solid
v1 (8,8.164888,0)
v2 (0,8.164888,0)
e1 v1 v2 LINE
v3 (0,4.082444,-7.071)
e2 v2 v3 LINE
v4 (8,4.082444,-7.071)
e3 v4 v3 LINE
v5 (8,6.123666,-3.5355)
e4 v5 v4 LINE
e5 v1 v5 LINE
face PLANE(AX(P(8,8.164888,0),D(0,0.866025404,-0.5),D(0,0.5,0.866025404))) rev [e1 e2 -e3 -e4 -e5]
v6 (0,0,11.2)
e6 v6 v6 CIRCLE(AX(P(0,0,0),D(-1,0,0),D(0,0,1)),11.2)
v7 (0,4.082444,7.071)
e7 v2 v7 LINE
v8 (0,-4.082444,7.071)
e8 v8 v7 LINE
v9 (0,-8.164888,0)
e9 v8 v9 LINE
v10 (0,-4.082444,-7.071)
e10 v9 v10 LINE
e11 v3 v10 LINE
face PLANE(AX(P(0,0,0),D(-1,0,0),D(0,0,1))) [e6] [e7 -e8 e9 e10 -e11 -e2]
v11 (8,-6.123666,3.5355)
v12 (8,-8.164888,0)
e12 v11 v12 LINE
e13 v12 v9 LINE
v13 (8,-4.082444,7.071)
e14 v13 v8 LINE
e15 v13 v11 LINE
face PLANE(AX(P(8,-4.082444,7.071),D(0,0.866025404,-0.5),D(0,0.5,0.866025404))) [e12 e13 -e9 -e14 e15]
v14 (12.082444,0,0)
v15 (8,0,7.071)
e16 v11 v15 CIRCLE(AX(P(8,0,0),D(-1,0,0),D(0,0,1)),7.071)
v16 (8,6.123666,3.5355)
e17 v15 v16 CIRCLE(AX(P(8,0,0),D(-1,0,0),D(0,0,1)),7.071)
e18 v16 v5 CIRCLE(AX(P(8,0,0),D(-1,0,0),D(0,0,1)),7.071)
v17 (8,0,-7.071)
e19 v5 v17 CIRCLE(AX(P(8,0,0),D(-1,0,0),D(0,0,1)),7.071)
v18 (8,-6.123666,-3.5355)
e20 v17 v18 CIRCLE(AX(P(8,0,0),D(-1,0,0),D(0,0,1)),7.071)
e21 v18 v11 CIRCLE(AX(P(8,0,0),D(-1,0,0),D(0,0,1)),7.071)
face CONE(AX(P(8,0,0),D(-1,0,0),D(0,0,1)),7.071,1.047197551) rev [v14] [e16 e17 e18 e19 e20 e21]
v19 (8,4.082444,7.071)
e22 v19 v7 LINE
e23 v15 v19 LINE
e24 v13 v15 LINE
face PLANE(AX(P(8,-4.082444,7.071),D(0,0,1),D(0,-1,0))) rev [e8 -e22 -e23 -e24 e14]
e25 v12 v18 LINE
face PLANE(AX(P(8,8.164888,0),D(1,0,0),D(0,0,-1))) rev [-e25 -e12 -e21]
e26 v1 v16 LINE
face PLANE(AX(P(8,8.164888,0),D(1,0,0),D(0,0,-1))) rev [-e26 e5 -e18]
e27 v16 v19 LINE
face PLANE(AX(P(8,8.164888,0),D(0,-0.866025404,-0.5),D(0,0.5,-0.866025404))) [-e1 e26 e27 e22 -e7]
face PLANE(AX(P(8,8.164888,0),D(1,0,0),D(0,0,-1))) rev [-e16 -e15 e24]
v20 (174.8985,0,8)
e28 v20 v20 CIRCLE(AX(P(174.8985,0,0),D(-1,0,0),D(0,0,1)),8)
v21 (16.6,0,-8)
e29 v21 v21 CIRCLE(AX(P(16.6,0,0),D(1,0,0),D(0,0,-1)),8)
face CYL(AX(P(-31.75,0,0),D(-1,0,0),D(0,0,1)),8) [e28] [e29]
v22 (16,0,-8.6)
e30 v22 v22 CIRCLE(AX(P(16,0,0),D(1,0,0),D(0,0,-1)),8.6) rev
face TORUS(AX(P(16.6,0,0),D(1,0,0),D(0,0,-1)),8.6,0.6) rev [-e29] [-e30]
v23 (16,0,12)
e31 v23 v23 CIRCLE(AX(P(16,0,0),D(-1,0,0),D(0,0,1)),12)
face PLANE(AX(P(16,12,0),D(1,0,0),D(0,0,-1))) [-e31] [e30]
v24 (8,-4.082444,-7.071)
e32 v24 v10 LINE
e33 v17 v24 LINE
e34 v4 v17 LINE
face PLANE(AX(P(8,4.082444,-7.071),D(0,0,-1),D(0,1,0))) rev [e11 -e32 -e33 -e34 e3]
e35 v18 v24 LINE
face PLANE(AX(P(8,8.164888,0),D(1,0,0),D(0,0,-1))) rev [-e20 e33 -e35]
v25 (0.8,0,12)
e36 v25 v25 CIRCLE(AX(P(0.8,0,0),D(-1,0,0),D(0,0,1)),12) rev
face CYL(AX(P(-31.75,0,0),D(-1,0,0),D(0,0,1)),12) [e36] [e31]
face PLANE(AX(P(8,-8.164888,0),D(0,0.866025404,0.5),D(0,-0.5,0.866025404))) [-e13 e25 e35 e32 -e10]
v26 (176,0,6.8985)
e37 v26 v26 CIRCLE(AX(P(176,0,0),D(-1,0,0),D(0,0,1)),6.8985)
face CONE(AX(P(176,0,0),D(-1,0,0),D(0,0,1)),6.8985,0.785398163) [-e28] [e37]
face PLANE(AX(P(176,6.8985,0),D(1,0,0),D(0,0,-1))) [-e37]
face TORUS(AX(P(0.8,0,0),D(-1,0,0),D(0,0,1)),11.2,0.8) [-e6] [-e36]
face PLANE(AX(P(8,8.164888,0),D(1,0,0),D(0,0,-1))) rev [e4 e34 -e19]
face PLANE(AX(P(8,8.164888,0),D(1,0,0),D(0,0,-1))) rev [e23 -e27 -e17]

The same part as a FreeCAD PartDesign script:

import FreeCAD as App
import Part
import Sketcher
from FreeCAD import Vector
Q = App.Units.Quantity


def edges_at(feature, points):
    """Names of the edges that pass closest to the given points."""
    edges = feature.Shape.Edges
    near = lambda p: min(range(len(edges)), key=lambda i: edges[i].distToShape(Part.Vertex(*p))[0])
    return sorted({f"Edge{near(p) + 1}" for p in points})

doc = App.newDocument("Part")
params = doc.addObject("Spreadsheet::Sheet", "Params")
for row, (alias, value) in enumerate([
    ("sketch1_width", "176 mm"),
    ("sketch1_width2", "16 mm"),
    ("sketch1_height", "12 mm"),
    ("sketch1_height2", "4 mm"),
    ("revolution_angle", "360 deg"),
    ("fillet_radius", "0.6 mm"),
    ("fillet2_radius", "0.8 mm"),
    ("sketch2_width", "8 mm"),
    ("groove_angle", "360 deg"),
    ("pocket1_length", "8 mm"),
], start=1):
    params.set(f"A{row}", alias)
    params.set(f"B{row}", "=" + value)
    params.setAlias(f"B{row}", alias)

body = doc.addObject("PartDesign::Body", "Body")

# Sketch on XY plane
sketch1 = body.newObject("Sketcher::SketchObject", "Sketch")
sketch1.AttachmentSupport = (doc.getObject("XY_Plane"), [""])
sketch1.MapMode = "FlatFace"
sketch1.addGeometry([
    Part.LineSegment(Vector(0, 12, 0), Vector(0, 0, 0)),  # 0
    Part.LineSegment(Vector(0, 0, 0), Vector(176, 0, 0)),  # 1
    Part.LineSegment(Vector(176, 0, 0), Vector(176, 6.9, 0)),  # 2
    Part.LineSegment(Vector(176, 6.9, 0), Vector(174.9, 8, 0)),  # 3
    Part.LineSegment(Vector(174.9, 8, 0), Vector(16, 8, 0)),  # 4
    Part.LineSegment(Vector(16, 8, 0), Vector(16, 12, 0)),  # 5
    Part.LineSegment(Vector(16, 12, 0), Vector(0, 12, 0)),  # 6
], False)
sketch1.addConstraint([
    Sketcher.Constraint("Coincident", 0, 2, 1, 1),
    Sketcher.Constraint("Coincident", 1, 2, 2, 1),
    Sketcher.Constraint("Coincident", 2, 2, 3, 1),
    Sketcher.Constraint("Coincident", 3, 2, 4, 1),
    Sketcher.Constraint("Coincident", 4, 2, 5, 1),
    Sketcher.Constraint("Coincident", 5, 2, 6, 1),
    Sketcher.Constraint("Coincident", 6, 2, 0, 1),
    Sketcher.Constraint("Vertical", 0),
    Sketcher.Constraint("Horizontal", 1),
    Sketcher.Constraint("Vertical", 2),
    Sketcher.Constraint("Horizontal", 4),
    Sketcher.Constraint("Vertical", 5),
    Sketcher.Constraint("Horizontal", 6),
    Sketcher.Constraint("Coincident", 0, 2, -1, 1),
    Sketcher.Constraint("DistanceX", 1, 1, 1, 2, 176.0),
    Sketcher.Constraint("DistanceX", 6, 2, 6, 1, 16.0),
    Sketcher.Constraint("DistanceY", 0, 2, 0, 1, 12.0),
    Sketcher.Constraint("DistanceY", 5, 1, 5, 2, 4.0),
    Sketcher.Constraint("Angle", 3, Q("135 deg")),
    Sketcher.Constraint("DistanceX", 4, 2, 4, 1, 158.8985),
])
sketch1.setExpression("Constraints[14]", "Params.sketch1_width")
sketch1.setExpression("Constraints[15]", "Params.sketch1_width2")
sketch1.setExpression("Constraints[16]", "Params.sketch1_height")
sketch1.setExpression("Constraints[17]", "Params.sketch1_height2")
revolution = body.newObject("PartDesign::Revolution", "Revolution")
revolution.Profile = sketch1
revolution.ReferenceAxis = (sketch1, ["H_Axis"])
revolution.setExpression("Angle", "Params.revolution_angle")
doc.recompute()

fillet = body.newObject("PartDesign::Fillet", "Fillet")
fillet.Base = (revolution, edges_at(revolution, [(16, 0, -8)]))
fillet.setExpression("Radius", "Params.fillet_radius")
doc.recompute()

fillet2 = body.newObject("PartDesign::Fillet", "Fillet001")
fillet2.Base = (fillet, edges_at(fillet, [(0, 0, -12)]))
fillet2.setExpression("Radius", "Params.fillet2_radius")

# Sketch on XY plane
sketch2 = body.newObject("Sketcher::SketchObject", "Sketch001")
sketch2.AttachmentSupport = (doc.getObject("XY_Plane"), [""])
sketch2.MapMode = "FlatFace"
sketch2.addGeometry([
    Part.LineSegment(Vector(8, 7, 0), Vector(0, 7, 0)),
    Part.LineSegment(Vector(0, 7, 0), Vector(0, 0, 0)),
    Part.LineSegment(Vector(0, 0, 0), Vector(12, 0, 0)),
    Part.LineSegment(Vector(12, 0, 0), Vector(8, 7, 0)),
], False)
sketch2.addConstraint([
    Sketcher.Constraint("Coincident", 0, 2, 1, 1),
    Sketcher.Constraint("Coincident", 1, 2, 2, 1),
    Sketcher.Constraint("Coincident", 2, 2, 3, 1),
    Sketcher.Constraint("Coincident", 3, 2, 0, 1),
    Sketcher.Constraint("Horizontal", 0),
    Sketcher.Constraint("Vertical", 1),
    Sketcher.Constraint("Horizontal", 2),
    Sketcher.Constraint("Coincident", 1, 2, -1, 1),
    Sketcher.Constraint("DistanceX", 0, 2, 0, 1, 8.0),
    Sketcher.Constraint("Angle", 3, Q("120 deg")),
    Sketcher.Constraint("DistanceY", 1, 2, 1, 1, 7.071),
])
sketch2.setExpression("Constraints[8]", "Params.sketch2_width")
groove = body.newObject("PartDesign::Groove", "Groove")
groove.Profile = sketch2
groove.ReferenceAxis = (sketch2, ["H_Axis"])
groove.setExpression("Angle", "Params.groove_angle")

# Sketch on YZ plane
sketch3 = body.newObject("Sketcher::SketchObject", "Sketch002")
sketch3.AttachmentSupport = (doc.getObject("YZ_Plane"), [""])
sketch3.MapMode = "FlatFace"
sketch3.addGeometry([
    Part.LineSegment(Vector(8, 0, 0), Vector(4, -7, 0)),  # 0
    Part.LineSegment(Vector(4, -7, 0), Vector(-4, -7, 0)),  # 1
    Part.LineSegment(Vector(-4, -7, 0), Vector(-8, 0, 0)),  # 2
    Part.LineSegment(Vector(-8, 0, 0), Vector(-4, 7, 0)),  # 3
    Part.LineSegment(Vector(-4, 7, 0), Vector(4, 7, 0)),  # 4
    Part.LineSegment(Vector(4, 7, 0), Vector(8, 0, 0)),  # 5
], False)
sketch3.addConstraint([
    Sketcher.Constraint("Coincident", 0, 2, 1, 1),
    Sketcher.Constraint("Coincident", 1, 2, 2, 1),
    Sketcher.Constraint("Coincident", 2, 2, 3, 1),
    Sketcher.Constraint("Coincident", 3, 2, 4, 1),
    Sketcher.Constraint("Coincident", 4, 2, 5, 1),
    Sketcher.Constraint("Coincident", 5, 2, 0, 1),
    Sketcher.Constraint("Horizontal", 1),
    Sketcher.Constraint("Horizontal", 4),
    Sketcher.Constraint("Symmetric", 0, 2, 3, 2, -1, 1),
    Sketcher.Constraint("Symmetric", 2, 2, 5, 2, -1, 1),
    Sketcher.Constraint("PointOnObject", 2, 2, -1),
    Sketcher.Constraint("Parallel", 2, 5),
    Sketcher.Constraint("Vertical", 1, 2, 3, 2),
    Sketcher.Constraint("Angle", 0, Q("-120 deg")),
    Sketcher.Constraint("DistanceY", 0, 2, -1, 1, 7.071),
    Sketcher.Constraint("DistanceX", 1, 2, 1, 1, 8.164888),
])
pocket1 = body.newObject("PartDesign::Pocket", "Pocket")
pocket1.Profile = sketch3
pocket1.setExpression("Length", "Params.pocket1_length")
pocket1.Reversed = True

doc.recompute()
